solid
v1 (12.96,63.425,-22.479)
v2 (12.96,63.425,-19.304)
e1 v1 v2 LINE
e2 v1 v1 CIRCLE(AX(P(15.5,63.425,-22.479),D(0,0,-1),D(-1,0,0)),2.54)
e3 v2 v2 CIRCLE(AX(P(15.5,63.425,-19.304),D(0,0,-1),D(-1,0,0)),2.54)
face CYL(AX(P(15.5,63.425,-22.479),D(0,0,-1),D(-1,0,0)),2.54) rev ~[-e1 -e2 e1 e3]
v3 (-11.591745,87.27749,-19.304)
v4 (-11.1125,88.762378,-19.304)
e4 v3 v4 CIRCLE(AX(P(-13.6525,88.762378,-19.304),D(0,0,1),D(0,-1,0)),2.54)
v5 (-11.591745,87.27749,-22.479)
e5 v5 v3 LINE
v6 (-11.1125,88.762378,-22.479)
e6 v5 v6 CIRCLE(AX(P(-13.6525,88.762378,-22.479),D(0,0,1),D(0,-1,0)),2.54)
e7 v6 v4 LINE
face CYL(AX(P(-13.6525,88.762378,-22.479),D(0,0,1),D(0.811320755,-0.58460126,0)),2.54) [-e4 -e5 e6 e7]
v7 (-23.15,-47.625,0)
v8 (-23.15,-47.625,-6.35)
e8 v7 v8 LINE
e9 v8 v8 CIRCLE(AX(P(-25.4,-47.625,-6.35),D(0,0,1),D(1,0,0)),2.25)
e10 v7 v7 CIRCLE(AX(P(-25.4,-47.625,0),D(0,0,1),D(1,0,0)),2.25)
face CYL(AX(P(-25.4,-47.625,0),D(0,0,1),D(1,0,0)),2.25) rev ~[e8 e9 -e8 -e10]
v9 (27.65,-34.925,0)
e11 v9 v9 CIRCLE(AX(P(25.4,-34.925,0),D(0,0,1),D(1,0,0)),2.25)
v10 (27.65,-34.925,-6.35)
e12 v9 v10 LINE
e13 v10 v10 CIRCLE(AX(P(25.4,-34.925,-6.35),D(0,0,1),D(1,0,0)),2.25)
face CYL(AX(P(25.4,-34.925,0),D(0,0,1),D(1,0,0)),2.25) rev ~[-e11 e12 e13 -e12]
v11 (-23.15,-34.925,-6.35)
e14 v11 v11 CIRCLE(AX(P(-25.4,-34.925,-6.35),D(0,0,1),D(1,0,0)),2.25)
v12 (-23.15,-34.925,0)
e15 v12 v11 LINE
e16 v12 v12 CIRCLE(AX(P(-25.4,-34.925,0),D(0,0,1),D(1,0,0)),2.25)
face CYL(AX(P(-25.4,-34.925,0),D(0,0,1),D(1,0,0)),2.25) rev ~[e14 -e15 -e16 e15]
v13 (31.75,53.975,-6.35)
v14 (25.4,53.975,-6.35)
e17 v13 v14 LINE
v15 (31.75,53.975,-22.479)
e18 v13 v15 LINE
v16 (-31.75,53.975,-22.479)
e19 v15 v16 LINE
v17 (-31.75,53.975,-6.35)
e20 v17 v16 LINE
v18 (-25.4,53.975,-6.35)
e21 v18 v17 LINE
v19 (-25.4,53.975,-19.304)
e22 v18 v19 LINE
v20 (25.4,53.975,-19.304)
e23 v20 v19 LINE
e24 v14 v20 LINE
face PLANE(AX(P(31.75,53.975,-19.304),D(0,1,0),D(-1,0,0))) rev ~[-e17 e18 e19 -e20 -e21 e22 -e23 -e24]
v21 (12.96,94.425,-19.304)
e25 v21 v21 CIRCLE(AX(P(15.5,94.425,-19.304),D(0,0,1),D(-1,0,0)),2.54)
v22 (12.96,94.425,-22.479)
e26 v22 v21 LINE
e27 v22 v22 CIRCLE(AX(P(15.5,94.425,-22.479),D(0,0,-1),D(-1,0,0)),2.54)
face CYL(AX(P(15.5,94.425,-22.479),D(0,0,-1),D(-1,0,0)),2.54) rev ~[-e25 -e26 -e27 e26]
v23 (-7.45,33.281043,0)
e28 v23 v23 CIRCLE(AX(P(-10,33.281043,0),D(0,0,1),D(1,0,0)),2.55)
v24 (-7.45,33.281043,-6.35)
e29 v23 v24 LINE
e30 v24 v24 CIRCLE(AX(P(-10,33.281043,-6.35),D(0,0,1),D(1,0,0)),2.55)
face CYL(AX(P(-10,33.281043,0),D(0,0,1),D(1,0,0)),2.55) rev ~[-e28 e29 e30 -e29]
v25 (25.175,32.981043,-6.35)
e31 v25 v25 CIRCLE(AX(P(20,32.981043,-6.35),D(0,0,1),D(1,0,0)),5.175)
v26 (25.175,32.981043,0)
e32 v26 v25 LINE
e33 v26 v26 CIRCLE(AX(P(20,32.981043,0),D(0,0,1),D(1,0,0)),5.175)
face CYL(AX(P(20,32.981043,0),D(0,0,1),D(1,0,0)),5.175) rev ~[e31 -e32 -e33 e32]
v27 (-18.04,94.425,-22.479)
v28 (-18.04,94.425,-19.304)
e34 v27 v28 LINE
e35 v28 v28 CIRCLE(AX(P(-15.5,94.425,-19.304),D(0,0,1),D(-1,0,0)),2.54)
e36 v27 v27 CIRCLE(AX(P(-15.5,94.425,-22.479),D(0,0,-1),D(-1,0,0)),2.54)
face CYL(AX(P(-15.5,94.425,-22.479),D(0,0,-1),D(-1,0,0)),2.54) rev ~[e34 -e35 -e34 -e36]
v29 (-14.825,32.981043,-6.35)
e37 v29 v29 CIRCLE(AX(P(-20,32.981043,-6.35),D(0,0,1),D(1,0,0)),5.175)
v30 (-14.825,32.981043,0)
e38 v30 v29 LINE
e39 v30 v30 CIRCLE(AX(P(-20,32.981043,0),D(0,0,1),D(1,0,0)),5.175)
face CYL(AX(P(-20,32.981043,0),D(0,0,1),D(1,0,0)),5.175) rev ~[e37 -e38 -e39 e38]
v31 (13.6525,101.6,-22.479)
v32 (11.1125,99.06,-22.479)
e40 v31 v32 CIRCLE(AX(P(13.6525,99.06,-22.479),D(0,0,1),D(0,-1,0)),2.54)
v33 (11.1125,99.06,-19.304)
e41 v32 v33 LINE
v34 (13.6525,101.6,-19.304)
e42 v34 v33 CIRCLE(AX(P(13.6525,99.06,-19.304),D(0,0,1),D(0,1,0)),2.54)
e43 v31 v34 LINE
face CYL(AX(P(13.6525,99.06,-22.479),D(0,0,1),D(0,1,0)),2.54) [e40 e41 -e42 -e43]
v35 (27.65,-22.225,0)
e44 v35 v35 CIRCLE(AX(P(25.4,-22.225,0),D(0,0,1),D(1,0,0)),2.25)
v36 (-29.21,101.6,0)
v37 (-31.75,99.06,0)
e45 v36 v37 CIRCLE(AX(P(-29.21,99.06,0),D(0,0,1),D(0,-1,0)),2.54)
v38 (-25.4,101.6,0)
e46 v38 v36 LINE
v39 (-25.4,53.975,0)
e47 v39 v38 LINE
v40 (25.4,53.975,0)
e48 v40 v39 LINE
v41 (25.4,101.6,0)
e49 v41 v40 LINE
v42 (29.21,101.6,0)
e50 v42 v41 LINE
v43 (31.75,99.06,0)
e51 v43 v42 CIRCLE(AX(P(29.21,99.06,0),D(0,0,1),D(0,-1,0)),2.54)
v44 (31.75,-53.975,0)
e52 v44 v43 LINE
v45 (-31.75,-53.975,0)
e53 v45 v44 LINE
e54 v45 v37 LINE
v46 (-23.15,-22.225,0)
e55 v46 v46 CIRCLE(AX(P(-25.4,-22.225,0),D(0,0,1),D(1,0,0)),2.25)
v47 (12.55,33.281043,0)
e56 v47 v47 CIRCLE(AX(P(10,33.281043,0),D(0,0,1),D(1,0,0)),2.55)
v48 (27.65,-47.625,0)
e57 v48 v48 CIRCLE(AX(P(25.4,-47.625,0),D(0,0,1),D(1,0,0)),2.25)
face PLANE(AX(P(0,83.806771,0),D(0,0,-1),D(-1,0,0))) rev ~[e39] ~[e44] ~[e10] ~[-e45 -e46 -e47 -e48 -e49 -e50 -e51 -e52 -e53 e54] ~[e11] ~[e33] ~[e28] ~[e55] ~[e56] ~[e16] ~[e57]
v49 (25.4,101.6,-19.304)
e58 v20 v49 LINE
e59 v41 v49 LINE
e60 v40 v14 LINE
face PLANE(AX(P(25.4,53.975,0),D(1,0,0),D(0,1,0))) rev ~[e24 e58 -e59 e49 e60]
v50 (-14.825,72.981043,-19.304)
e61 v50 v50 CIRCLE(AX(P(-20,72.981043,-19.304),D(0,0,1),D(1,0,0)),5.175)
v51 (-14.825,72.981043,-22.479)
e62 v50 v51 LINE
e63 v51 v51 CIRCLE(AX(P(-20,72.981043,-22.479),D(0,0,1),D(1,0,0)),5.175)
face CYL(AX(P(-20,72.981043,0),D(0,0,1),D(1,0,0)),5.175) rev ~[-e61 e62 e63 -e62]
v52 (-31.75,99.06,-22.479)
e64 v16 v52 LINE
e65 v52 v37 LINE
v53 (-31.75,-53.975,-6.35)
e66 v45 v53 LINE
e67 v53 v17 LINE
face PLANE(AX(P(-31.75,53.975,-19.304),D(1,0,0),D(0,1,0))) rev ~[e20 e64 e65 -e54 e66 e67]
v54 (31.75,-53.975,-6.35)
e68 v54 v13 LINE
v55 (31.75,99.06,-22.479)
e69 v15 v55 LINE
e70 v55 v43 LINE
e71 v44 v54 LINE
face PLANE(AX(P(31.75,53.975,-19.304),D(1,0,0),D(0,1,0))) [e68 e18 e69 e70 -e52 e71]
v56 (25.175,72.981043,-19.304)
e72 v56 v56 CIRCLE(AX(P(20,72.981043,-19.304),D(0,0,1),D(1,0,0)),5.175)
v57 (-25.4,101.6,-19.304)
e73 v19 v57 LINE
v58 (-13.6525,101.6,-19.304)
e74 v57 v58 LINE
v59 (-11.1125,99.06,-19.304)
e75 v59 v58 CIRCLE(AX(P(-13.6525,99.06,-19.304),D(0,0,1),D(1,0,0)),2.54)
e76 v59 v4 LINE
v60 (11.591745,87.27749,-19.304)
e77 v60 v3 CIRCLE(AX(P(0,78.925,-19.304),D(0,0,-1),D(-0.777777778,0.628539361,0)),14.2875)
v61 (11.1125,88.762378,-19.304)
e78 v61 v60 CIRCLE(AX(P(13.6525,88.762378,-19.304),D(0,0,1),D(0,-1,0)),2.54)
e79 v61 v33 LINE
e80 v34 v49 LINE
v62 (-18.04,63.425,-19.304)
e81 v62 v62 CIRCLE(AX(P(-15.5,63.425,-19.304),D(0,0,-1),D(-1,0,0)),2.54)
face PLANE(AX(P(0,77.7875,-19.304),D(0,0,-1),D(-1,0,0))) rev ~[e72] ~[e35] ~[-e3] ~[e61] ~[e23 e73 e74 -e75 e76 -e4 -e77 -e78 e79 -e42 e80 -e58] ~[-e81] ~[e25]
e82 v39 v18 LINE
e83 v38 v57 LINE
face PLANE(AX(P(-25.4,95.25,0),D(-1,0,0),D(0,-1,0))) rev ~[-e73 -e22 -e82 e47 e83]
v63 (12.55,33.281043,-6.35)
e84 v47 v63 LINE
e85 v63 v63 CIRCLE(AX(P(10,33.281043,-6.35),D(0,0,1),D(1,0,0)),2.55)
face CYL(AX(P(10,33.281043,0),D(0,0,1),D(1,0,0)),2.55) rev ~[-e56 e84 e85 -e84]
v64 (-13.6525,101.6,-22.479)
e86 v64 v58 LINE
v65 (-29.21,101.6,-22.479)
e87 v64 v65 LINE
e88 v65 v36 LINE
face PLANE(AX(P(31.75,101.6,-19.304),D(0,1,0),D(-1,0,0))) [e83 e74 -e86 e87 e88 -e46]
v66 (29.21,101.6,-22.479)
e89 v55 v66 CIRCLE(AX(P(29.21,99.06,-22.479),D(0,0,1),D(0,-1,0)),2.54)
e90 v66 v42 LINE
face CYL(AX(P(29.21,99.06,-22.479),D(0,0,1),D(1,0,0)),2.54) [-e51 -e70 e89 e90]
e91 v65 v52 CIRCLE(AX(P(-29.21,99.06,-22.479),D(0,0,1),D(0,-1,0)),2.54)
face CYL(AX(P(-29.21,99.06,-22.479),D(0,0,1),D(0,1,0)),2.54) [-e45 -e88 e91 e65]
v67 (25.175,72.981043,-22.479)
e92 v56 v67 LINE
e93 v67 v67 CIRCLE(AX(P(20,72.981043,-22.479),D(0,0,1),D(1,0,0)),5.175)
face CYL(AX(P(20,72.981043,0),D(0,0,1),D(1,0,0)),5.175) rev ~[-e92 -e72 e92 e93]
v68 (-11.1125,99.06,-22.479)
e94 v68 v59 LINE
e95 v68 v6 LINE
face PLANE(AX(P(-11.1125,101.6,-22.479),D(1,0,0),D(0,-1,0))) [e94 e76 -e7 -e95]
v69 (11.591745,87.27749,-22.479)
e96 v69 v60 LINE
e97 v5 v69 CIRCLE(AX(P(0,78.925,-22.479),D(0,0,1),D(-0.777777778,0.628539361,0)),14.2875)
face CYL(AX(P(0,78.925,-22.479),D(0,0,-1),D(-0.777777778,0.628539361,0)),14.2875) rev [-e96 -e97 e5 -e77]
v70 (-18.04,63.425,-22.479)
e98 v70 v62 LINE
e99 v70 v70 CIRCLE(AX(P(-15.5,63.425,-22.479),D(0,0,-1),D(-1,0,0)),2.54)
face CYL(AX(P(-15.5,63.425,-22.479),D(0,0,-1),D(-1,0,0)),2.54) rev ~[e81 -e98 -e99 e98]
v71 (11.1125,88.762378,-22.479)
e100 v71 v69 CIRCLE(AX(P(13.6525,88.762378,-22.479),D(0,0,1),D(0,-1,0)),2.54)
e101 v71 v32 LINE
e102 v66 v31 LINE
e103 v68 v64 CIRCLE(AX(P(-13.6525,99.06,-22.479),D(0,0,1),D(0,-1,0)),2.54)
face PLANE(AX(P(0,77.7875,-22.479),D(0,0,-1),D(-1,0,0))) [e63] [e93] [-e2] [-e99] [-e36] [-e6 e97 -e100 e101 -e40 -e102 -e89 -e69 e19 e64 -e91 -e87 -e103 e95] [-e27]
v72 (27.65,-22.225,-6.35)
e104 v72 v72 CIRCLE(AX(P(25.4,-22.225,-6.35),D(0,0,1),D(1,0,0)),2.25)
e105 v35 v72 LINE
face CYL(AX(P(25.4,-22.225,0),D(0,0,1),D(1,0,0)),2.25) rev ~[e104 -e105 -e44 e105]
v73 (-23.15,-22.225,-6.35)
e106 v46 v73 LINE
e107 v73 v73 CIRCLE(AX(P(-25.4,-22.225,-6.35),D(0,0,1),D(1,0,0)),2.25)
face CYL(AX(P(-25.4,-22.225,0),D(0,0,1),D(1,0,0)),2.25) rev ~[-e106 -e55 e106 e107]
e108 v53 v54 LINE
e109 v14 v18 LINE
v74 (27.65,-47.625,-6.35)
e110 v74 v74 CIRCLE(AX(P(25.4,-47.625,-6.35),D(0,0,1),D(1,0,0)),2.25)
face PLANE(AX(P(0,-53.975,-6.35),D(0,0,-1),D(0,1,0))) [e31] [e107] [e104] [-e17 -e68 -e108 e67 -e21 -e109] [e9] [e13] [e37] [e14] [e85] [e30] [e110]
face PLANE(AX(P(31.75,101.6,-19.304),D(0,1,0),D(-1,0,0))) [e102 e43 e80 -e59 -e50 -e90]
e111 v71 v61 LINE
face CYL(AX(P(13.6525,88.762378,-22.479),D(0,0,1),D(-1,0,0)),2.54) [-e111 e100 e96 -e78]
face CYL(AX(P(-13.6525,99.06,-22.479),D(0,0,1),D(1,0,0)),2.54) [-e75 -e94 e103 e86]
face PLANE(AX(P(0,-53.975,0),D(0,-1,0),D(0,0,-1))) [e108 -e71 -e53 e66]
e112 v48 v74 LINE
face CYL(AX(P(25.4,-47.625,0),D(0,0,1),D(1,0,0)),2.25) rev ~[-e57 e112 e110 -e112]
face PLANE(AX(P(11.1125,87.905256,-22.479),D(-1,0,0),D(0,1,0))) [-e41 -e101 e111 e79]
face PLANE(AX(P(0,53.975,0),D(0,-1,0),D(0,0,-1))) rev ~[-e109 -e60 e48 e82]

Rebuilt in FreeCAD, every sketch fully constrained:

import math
import FreeCAD as App
import Part
import Sketcher
from FreeCAD import Vector
Q = App.Units.Quantity


def edges_at(feature, points):
    """Names of the edges that pass closest to the given points."""
    edges = feature.Shape.Edges
    near = lambda p: min(range(len(edges)), key=lambda i: edges[i].distToShape(Part.Vertex(*p))[0])
    return sorted({f"Edge{near(p) + 1}" for p in points})


def add_polygon(sketch, points):
    """Adds a closed chain of lines whose ends are joined by coincident constraints."""
    first, n = sketch.GeometryCount, len(points)
    for a, b in zip(points, points[1:] + points[:1]):
        sketch.addGeometry(Part.LineSegment(App.Vector(*a, 0), App.Vector(*b, 0)), False)
    for i in range(n):
        sketch.addConstraint(Sketcher.Constraint("Coincident", first + i, 2, first + (i + 1) % n, 1))

doc = App.newDocument("Part")
body = doc.addObject("PartDesign::Body", "Body")

# Sketch on YZ plane
sketch1 = body.newObject("Sketcher::SketchObject", "Sketch")
sketch1.AttachmentSupport = (doc.getObject("YZ_Plane"), [""])
sketch1.MapMode = "FlatFace"
add_polygon(sketch1, [(53.975, 0), (-53.975, 0), (-53.975, -6.35), (53.975, -6.35)])  # lines 0-3
sketch1.addConstraint([
    Sketcher.Constraint("Horizontal", 0),
    Sketcher.Constraint("Vertical", 1),
    Sketcher.Constraint("Horizontal", 2),
    Sketcher.Constraint("Vertical", 3),
    Sketcher.Constraint("Symmetric", 0, 2, 3, 2, -1, 1),
    Sketcher.Constraint("DistanceX", 0, 2, 0, 1, Q("4.25 in")),
    Sketcher.Constraint("DistanceY", 1, 2, 1, 1, Q("0.25 in")),
])
pad1 = body.newObject("PartDesign::Pad", "Pad")
pad1.Profile = sketch1
pad1.Length = Q("2.5 in")
pad1.Midplane = True

# Sketch on XY plane
sketch2 = body.newObject("Sketcher::SketchObject", "Sketch001")
sketch2.AttachmentSupport = (doc.getObject("XY_Plane"), [""])
sketch2.MapMode = "FlatFace"
add_polygon(sketch2, [(-31.75, 101.6), (-31.75, 53.975), (-25.4, 53.975), (-25.4, 95.25), (25.4, 95.25), (25.4, 53.975), (31.75, 53.975), (31.75, 101.6)])  # lines 0-7
sketch2.addConstraint([
    Sketcher.Constraint("Vertical", 0),
    Sketcher.Constraint("Horizontal", 1),
    Sketcher.Constraint("Vertical", 2),
    Sketcher.Constraint("Horizontal", 3),
    Sketcher.Constraint("Vertical", 4),
    Sketcher.Constraint("Horizontal", 5),
    Sketcher.Constraint("Vertical", 6),
    Sketcher.Constraint("Horizontal", 7),
    Sketcher.Constraint("Symmetric", 1, 2, 4, 2, -2),
    Sketcher.Constraint("Equal", 1, 5),
    Sketcher.Constraint("DistanceX", 3, 1, 3, 2, Q("2 in")),
    Sketcher.Constraint("DistanceX", 7, 2, 7, 1, Q("2.5 in")),
    Sketcher.Constraint("DistanceY", -1, 1, 6, 2, Q("4 in")),
    Sketcher.Constraint("DistanceY", 0, 2, 0, 1, Q("1.875 in")),
    Sketcher.Constraint("DistanceY", 2, 1, 2, 2, Q("1.625 in")),
])
pad2 = body.newObject("PartDesign::Pad", "Pad001")
pad2.Profile = sketch2
pad2.Length = Q("0.76 in")
pad2.Reversed = True

# Sketch on XY plane
sketch3 = body.newObject("Sketcher::SketchObject", "Sketch002")
sketch3.AttachmentSupport = (doc.getObject("XY_Plane"), [""])
sketch3.MapMode = "FlatFace"
sketch3.AttachmentOffset = App.Placement(Vector(0, 0, -0.76 * 25.4), App.Rotation())
add_polygon(sketch3, [(31.75, 101.6), (31.75, 53.975), (-31.75, 53.975), (-31.75, 101.6)])  # lines 0-3
sketch3.addConstraint([
    Sketcher.Constraint("Vertical", 0),
    Sketcher.Constraint("Horizontal", 1),
    Sketcher.Constraint("Vertical", 2),
    Sketcher.Constraint("Horizontal", 3),
    Sketcher.Constraint("DistanceX", 1, 2, 1, 1, Q("2.5 in")),
    Sketcher.Constraint("DistanceY", -1, 1, 2, 2, Q("4 in")),
    Sketcher.Constraint("DistanceY", 0, 2, 0, 1, Q("1.875 in")),
    Sketcher.Constraint("DistanceX", -1, 1, 0, 2, Q("1.25 in")),
])
pad3 = body.newObject("PartDesign::Pad", "Pad002")
pad3.Profile = sketch3
pad3.Length = Q("0.125 in")
pad3.Reversed = True

# Sketch on XY plane
sketch4 = body.newObject("Sketcher::SketchObject", "Sketch003")
sketch4.AttachmentSupport = (doc.getObject("XY_Plane"), [""])
sketch4.MapMode = "FlatFace"
sketch4.AttachmentOffset = App.Placement(Vector(0, 0, -0.885 * 25.4), App.Rotation())
sketch4.addGeometry([
    Part.Circle(Vector(-15.5, 94.425, 0), Vector(0, 0, 1), 2.54),  # 0
    Part.Circle(Vector(-15.5, 63.425, 0), Vector(0, 0, 1), 2.54),  # 1
    Part.Circle(Vector(15.5, 63.425, 0), Vector(0, 0, 1), 2.54),  # 2
    Part.Circle(Vector(15.5, 94.425, 0), Vector(0, 0, 1), 2.54),  # 3
    Part.LineSegment(Vector(11.1125, 101.6, 0), Vector(11.1125, 87.905256, 0)),  # 4
    Part.ArcOfCircle(Part.Circle(Vector(0, 78.925, 0), Vector(0, 0, 1), 14.2875), math.radians(141.057559), math.radians(398.942441)),  # 5
    Part.LineSegment(Vector(-11.1125, 87.905256, 0), Vector(-11.1125, 101.6, 0)),  # 6
    Part.LineSegment(Vector(-11.1125, 101.6, 0), Vector(11.1125, 101.6, 0)),  # 7
], False)
sketch4.addConstraint([
    Sketcher.Constraint("Coincident", 4, 2, 5, 2),
    Sketcher.Constraint("Coincident", 5, 1, 6, 1),
    Sketcher.Constraint("Coincident", 6, 2, 7, 1),
    Sketcher.Constraint("Coincident", 7, 2, 4, 1),
    Sketcher.Constraint("Vertical", 4),
    Sketcher.Constraint("Vertical", 6),
    Sketcher.Constraint("Horizontal", 7),
    Sketcher.Constraint("Equal", 0, 1),
    Sketcher.Constraint("Equal", 1, 2),
    Sketcher.Constraint("Equal", 2, 3),
    Sketcher.Constraint("Symmetric", 1, 3, 2, 3, -2),
    Sketcher.Constraint("Symmetric", 0, 3, 3, 3, -2),
    Sketcher.Constraint("Symmetric", 4, 2, 5, 1, -2),
    Sketcher.Constraint("Vertical", 0, 3, 1, 3),
    Sketcher.Constraint("Diameter", 0, Q("0.2 in")),
    Sketcher.Constraint("DistanceY", -1, 1, 6, 2, Q("4 in")),
    Sketcher.Constraint("Radius", 5, Q("0.5625 in")),
    Sketcher.Constraint("DistanceX", 7, 1, 7, 2, Q("0.875 in")),
    Sketcher.Constraint("DistanceX", 0, 3, -1, 1, Q("15.5 mm")),
    Sketcher.Constraint("DistanceY", -1, 1, 0, 3, Q("94.425 mm")),
    Sketcher.Constraint("DistanceY", -1, 1, 1, 3, Q("63.425 mm")),
    Sketcher.Constraint("DistanceY", -1, 1, 5, 3, Q("78.925 mm")),
])
pocket1 = body.newObject("PartDesign::Pocket", "Pocket")
pocket1.Profile = sketch4
pocket1.Type = "ThroughAll"
pocket1.Reversed = True
doc.recompute()

fillet = body.newObject("PartDesign::Fillet", "Fillet")
fillet.Base = (pocket1, edges_at(pocket1, [
    (-31.75, 101.6, -11.239),
    (31.75, 101.6, -11.239),
    (-11.113, 87.905, -20.892),
    (11.113, 87.905, -20.892),
    (11.113, 101.6, -11.239),
    (-11.113, 101.6, -11.239),
]))
fillet.Radius = Q("0.1 in")

# Sketch on XZ plane
sketch5 = body.newObject("Sketcher::SketchObject", "Sketch004")
sketch5.AttachmentSupport = (doc.getObject("XZ_Plane"), [""])
sketch5.MapMode = "FlatFace"
sketch5.AttachmentOffset = App.Placement(Vector(0, 0, -3.75 * 25.4), App.Rotation())
add_polygon(sketch5, [(-25.4, -19.304), (-25.4, 0), (25.4, 0), (25.4, -19.304)])  # lines 0-3
sketch5.addConstraint([
    Sketcher.Constraint("Vertical", 0),
    Sketcher.Constraint("Horizontal", 1),
    Sketcher.Constraint("Vertical", 2),
    Sketcher.Constraint("Horizontal", 3),
    Sketcher.Constraint("Symmetric", 0, 2, 1, 2, -1, 1),
    Sketcher.Constraint("DistanceX", 1, 1, 1, 2, Q("2 in")),
    Sketcher.Constraint("DistanceY", 0, 1, 0, 2, Q("0.76 in")),
])
pocket2 = body.newObject("PartDesign::Pocket", "Pocket001")
pocket2.Profile = sketch5
pocket2.Length = Q("0.25 in")

# Sketch on XY plane
sketch6 = body.newObject("Sketcher::SketchObject", "Sketch005")
sketch6.AttachmentSupport = (doc.getObject("XY_Plane"), [""])
sketch6.MapMode = "FlatFace"
sketch6.addGeometry([
    Part.Circle(Vector(25.4, -47.625, 0), Vector(0, 0, 1), 2.25),
    Part.Circle(Vector(-25.4, -47.625, 0), Vector(0, 0, 1), 2.25),
], False)
sketch6.addConstraint([
    Sketcher.Constraint("Equal", 0, 1),
    Sketcher.Constraint("Symmetric", 0, 3, 1, 3, -2),
    Sketcher.Constraint("DistanceX", -1, 1, 0, 3, Q("1 in")),
    Sketcher.Constraint("Diameter", 0, Q("4.5 mm")),
    Sketcher.Constraint("DistanceY", 0, 3, -1, 1, Q("1.875 in")),
])
pocket3 = body.newObject("PartDesign::Pocket", "Pocket002")
pocket3.Profile = sketch6
pocket3.Type = "ThroughAll"

# Sketch on XY plane
sketch7 = body.newObject("Sketcher::SketchObject", "Sketch006")
sketch7.AttachmentSupport = (doc.getObject("XY_Plane"), [""])
sketch7.MapMode = "FlatFace"
sketch7.addGeometry([
    Part.Circle(Vector(10, 72.981043, 0), Vector(0, 0, 1), 2.55),  # 0
    Part.Circle(Vector(-10, 33.281043, 0), Vector(0, 0, 1), 2.55),  # 1
    Part.Circle(Vector(-10, 72.981043, 0), Vector(0, 0, 1), 2.55),  # 2
    Part.Circle(Vector(10, 33.281043, 0), Vector(0, 0, 1), 2.55),  # 3
    Part.Circle(Vector(-20, 72.981043, 0), Vector(0, 0, 1), 5.175),  # 4
    Part.Circle(Vector(20, 72.981043, 0), Vector(0, 0, 1), 5.175),  # 5
    Part.Circle(Vector(20, 32.981043, 0), Vector(0, 0, 1), 5.175),  # 6
    Part.Circle(Vector(-20, 32.981043, 0), Vector(0, 0, 1), 5.175),  # 7
], False)
sketch7.addConstraint([
    Sketcher.Constraint("Equal", 0, 1),
    Sketcher.Constraint("Equal", 1, 2),
    Sketcher.Constraint("Equal", 2, 3),
    Sketcher.Constraint("Equal", 4, 5),
    Sketcher.Constraint("Equal", 5, 6),
    Sketcher.Constraint("Equal", 6, 7),
    Sketcher.Constraint("Symmetric", 0, 3, 2, 3, -2),
    Sketcher.Constraint("Symmetric", 1, 3, 3, 3, -2),
    Sketcher.Constraint("Symmetric", 4, 3, 5, 3, -2),
    Sketcher.Constraint("Symmetric", 6, 3, 7, 3, -2),
    Sketcher.Constraint("Horizontal", 2, 3, 4, 3),
    Sketcher.Constraint("Vertical", 1, 3, 2, 3),
    Sketcher.Constraint("Vertical", 5, 3, 6, 3),
    Sketcher.Constraint("Diameter", 0, Q("5.1 mm")),
    Sketcher.Constraint("Diameter", 4, Q("10.35 mm")),
    Sketcher.Constraint("DistanceX", -1, 1, 0, 3, Q("10 mm")),
    Sketcher.Constraint("DistanceX", 4, 3, -1, 1, Q("20 mm")),
    Sketcher.Constraint("DistanceY", 1, 3, 0, 3, Q("39.7 mm")),
    Sketcher.Constraint("DistanceY", 6, 3, 3, 3, Q("0.3 mm")),
    Sketcher.Constraint("DistanceY", -1, 1, 0, 3, Q("72.981043 mm")),
])
pocket4 = body.newObject("PartDesign::Pocket", "Pocket003")
pocket4.Profile = sketch7
pocket4.Type = "ThroughAll"
doc.recompute()

linearpattern = body.newObject("PartDesign::LinearPattern", "LinearPattern")
linearpattern.Originals = [pocket3]
linearpattern.Direction = (doc.getObject("Y_Axis"), [""])
linearpattern.Mode = "offset"
linearpattern.Offset = Q("0.5 in")
linearpattern.Occurrences = 3
body.Tip = linearpattern

doc.recompute()
